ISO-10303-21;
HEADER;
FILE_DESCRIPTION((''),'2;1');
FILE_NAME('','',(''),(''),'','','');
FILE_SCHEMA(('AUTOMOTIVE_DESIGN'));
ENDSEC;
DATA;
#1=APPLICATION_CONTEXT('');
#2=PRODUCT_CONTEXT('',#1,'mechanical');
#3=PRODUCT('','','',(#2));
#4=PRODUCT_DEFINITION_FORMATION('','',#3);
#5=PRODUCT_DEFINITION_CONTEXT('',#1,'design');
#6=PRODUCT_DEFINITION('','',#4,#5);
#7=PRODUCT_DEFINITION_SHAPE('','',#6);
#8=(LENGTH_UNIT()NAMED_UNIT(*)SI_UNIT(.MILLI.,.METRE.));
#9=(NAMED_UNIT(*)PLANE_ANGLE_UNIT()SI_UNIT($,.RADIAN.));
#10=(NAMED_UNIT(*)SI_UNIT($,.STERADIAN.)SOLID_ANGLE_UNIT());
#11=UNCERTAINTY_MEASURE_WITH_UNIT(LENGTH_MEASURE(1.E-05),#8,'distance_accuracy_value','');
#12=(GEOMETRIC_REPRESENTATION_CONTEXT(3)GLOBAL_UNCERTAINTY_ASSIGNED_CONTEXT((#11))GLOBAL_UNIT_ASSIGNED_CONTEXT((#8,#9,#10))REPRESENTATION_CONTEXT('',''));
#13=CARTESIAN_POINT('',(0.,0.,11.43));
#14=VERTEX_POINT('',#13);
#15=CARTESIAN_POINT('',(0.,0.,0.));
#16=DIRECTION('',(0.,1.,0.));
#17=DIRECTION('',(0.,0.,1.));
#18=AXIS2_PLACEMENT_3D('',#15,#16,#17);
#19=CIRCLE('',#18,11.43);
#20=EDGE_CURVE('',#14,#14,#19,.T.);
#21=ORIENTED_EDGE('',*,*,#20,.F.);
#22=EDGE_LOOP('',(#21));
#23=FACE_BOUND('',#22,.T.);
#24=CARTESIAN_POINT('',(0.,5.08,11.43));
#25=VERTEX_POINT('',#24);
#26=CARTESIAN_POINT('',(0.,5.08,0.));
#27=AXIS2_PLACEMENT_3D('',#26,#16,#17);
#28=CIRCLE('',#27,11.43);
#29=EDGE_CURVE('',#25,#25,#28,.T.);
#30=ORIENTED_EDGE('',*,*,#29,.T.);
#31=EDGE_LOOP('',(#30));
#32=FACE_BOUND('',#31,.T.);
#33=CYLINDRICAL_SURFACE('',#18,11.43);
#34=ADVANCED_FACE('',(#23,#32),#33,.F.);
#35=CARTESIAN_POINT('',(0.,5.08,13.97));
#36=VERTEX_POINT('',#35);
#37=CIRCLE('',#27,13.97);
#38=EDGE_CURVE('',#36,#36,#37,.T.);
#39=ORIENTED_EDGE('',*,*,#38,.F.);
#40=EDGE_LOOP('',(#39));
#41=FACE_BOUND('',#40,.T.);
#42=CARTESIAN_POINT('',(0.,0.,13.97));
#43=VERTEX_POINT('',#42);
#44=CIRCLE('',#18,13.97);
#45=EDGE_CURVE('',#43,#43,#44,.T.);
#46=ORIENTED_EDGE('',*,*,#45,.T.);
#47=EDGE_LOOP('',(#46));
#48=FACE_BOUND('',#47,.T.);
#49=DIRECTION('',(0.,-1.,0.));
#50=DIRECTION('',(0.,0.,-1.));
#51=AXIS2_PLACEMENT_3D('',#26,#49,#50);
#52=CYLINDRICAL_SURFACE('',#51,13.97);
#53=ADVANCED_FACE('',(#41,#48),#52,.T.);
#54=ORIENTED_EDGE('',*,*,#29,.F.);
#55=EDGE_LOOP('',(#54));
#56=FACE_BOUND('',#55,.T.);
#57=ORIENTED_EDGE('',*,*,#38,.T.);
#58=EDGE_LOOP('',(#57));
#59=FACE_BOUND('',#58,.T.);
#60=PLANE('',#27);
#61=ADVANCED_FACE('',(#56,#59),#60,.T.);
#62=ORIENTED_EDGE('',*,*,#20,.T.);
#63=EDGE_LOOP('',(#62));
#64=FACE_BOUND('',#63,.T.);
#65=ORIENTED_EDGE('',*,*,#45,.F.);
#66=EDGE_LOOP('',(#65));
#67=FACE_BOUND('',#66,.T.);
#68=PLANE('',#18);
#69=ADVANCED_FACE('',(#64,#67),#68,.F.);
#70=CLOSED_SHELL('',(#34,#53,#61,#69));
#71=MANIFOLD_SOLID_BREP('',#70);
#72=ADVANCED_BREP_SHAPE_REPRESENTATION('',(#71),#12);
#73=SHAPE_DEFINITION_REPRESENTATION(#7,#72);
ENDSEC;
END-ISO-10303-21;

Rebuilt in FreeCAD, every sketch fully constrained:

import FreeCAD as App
import Part
import Sketcher
from FreeCAD import Vector
Q = App.Units.Quantity

doc = App.newDocument("Part")
body = doc.addObject("PartDesign::Body", "Body")

sketch1 = body.newObject("Sketcher::SketchObject", "Sketch")
sketch1.AttachmentSupport = (doc.getObject("XZ_Plane"), [""])
sketch1.MapMode = "FlatFace"
sketch1.addGeometry(Part.Circle(Vector(0, 0, 0), Vector(0, 0, 1), 14), False)
sketch1.addConstraint([
    Sketcher.Constraint("Coincident", 0, 3, -1, 1),
    Sketcher.Constraint("Diameter", 0, Q("1.1 in")),
])
pad1 = body.newObject("PartDesign::Pad", "Pad")
pad1.Profile = sketch1
pad1.Length = Q("0.2 in")
pad1.Reversed = True

sketch2 = body.newObject("Sketcher::SketchObject", "Sketch001")
sketch2.AttachmentSupport = (doc.getObject("XZ_Plane"), [""])
sketch2.MapMode = "FlatFace"
sketch2.AttachmentOffset = App.Placement(Vector(0, 0, -0.2 * 25.4), App.Rotation())
sketch2.addGeometry(Part.Circle(Vector(0, 0, 0), Vector(0, 0, 1), 11), False)
sketch2.addConstraint([
    Sketcher.Constraint("Coincident", 0, 3, -1, 1),
    Sketcher.Constraint("Diameter", 0, Q("0.9 in")),
])
pocket1 = body.newObject("PartDesign::Pocket", "Pocket")
pocket1.Profile = sketch2
pocket1.Length = Q("0.2 in")
pocket1.Reversed = True

doc.recompute()
